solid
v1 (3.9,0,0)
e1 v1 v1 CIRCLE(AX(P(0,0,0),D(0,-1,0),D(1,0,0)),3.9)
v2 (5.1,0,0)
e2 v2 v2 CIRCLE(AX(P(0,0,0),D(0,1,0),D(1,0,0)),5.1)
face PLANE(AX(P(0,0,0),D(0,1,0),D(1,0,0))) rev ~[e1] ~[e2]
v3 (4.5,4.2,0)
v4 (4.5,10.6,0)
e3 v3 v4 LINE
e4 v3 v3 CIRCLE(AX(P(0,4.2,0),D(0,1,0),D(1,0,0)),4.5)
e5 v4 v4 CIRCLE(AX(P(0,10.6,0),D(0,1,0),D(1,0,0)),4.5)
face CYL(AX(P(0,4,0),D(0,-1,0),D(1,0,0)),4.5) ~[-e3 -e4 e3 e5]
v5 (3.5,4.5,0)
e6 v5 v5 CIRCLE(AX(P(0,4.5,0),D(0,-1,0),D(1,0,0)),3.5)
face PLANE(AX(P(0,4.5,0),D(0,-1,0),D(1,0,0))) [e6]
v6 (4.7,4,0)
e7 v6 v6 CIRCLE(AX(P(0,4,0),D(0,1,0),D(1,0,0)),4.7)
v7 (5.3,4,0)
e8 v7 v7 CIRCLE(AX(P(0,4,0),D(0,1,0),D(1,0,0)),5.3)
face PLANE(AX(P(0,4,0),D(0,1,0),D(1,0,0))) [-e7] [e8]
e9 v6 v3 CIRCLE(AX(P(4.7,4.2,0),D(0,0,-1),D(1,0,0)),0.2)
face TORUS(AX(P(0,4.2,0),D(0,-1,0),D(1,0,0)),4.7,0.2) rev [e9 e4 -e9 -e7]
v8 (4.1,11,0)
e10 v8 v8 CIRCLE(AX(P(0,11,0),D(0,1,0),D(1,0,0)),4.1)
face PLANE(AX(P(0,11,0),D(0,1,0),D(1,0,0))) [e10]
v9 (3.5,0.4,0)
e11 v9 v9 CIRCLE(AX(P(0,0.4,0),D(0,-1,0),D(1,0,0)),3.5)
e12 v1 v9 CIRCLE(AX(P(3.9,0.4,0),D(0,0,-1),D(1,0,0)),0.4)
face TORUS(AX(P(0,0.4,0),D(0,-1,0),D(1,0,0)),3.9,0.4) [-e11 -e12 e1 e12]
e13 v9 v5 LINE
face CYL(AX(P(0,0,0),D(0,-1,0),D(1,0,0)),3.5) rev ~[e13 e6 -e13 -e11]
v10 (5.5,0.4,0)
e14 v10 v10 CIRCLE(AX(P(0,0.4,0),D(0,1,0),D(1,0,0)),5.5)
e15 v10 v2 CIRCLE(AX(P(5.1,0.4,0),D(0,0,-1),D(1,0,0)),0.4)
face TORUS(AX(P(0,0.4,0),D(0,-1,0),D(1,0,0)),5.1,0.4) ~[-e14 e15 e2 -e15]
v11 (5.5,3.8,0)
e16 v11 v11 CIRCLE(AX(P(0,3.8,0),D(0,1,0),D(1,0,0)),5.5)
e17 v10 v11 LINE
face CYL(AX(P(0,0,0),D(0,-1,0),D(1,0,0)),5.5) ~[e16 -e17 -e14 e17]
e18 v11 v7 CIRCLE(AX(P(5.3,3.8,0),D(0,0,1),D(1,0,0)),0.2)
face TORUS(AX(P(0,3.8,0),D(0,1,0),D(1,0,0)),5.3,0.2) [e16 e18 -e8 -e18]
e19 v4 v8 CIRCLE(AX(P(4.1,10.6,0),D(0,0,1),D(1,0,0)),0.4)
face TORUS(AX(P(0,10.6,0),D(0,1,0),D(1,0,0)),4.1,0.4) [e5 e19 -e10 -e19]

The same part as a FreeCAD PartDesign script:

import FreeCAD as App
import Part
import Sketcher


def edges_at(feature, points):
    """Names of the edges that pass closest to the given points."""
    edges = feature.Shape.Edges
    near = lambda p: min(range(len(edges)), key=lambda i: edges[i].distToShape(Part.Vertex(*p))[0])
    return sorted({f"Edge{near(p) + 1}" for p in points})

doc = App.newDocument("Part")
params = doc.addObject("Spreadsheet::Sheet", "Params")
for row, (alias, value) in enumerate([
    ("sketch1_diameter", "11 mm"),
    ("pad1_length", "4 mm"),
    ("sketch2_diameter", "9 mm"),
    ("pad2_length", "7 mm"),
    ("sketch3_diameter", "7 mm"),
    ("pocket1_length", "4.5 mm"),
    ("fillet_radius", "0.4 mm"),
    ("fillet2_radius", "0.2 mm"),
], start=1):
    params.set(f"A{row}", alias)
    params.set(f"B{row}", "=" + value)
    params.setAlias(f"B{row}", alias)

body = doc.addObject("PartDesign::Body", "Body")

# Sketch on XZ plane
sketch1 = doc.addObject("Sketcher::SketchObject", "Sketch")
body.addObject(sketch1)
sketch1.AttachmentSupport = (doc.XZ_Plane, [""])
sketch1.MapMode = "FlatFace"
sketch1.addGeometry(Part.Circle(App.Vector(0, 0, 0), App.Vector(0, 0, 1), 5.5), False)
sketch1.addConstraint([
    Sketcher.Constraint("Coincident", 0, 3, -1, 1),
    Sketcher.Constraint("Diameter", 0, 11.0),
])
sketch1.setExpression("Constraints[1]", "Params.sketch1_diameter")
pad1 = doc.addObject("PartDesign::Pad", "Pad")
body.addObject(pad1)
pad1.Profile = sketch1
pad1.setExpression("Length", "Params.pad1_length")
pad1.Reversed = True

# Sketch on XZ plane
sketch2 = doc.addObject("Sketcher::SketchObject", "Sketch001")
body.addObject(sketch2)
sketch2.AttachmentSupport = (doc.XZ_Plane, [""])
sketch2.MapMode = "FlatFace"
sketch2.AttachmentOffset = App.Placement(App.Vector(0, 0, -4), App.Rotation())
sketch2.addGeometry(Part.Circle(App.Vector(0, 0, 0), App.Vector(0, 0, 1), 4.5), False)
sketch2.addConstraint([
    Sketcher.Constraint("Coincident", 0, 3, -1, 1),
    Sketcher.Constraint("Diameter", 0, 9.0),
])
sketch2.setExpression("Constraints[1]", "Params.sketch2_diameter")
pad2 = doc.addObject("PartDesign::Pad", "Pad001")
body.addObject(pad2)
pad2.Profile = sketch2
pad2.setExpression("Length", "Params.pad2_length")
pad2.Reversed = True

# Sketch on XZ plane
sketch3 = doc.addObject("Sketcher::SketchObject", "Sketch002")
body.addObject(sketch3)
sketch3.AttachmentSupport = (doc.XZ_Plane, [""])
sketch3.MapMode = "FlatFace"
sketch3.addGeometry(Part.Circle(App.Vector(0, 0, 0), App.Vector(0, 0, 1), 3.5), False)
sketch3.addConstraint([
    Sketcher.Constraint("Coincident", 0, 3, -1, 1),
    Sketcher.Constraint("Diameter", 0, 7.0),
])
sketch3.setExpression("Constraints[1]", "Params.sketch3_diameter")
pocket1 = doc.addObject("PartDesign::Pocket", "Pocket")
body.addObject(pocket1)
pocket1.Profile = sketch3
pocket1.setExpression("Length", "Params.pocket1_length")
doc.recompute()

fillet = doc.addObject("PartDesign::Fillet", "Fillet")
body.addObject(fillet)
fillet.Base = (pocket1, edges_at(pocket1, [(-3.5, 0, 0), (-5.5, 0, 0), (-4.5, 11, 0)]))
fillet.setExpression("Radius", "Params.fillet_radius")
doc.recompute()

fillet2 = doc.addObject("PartDesign::Fillet", "Fillet001")
body.addObject(fillet2)
fillet2.Base = (fillet, edges_at(fillet, [(-5.5, 4, 0), (-4.5, 4, 0)]))
fillet2.setExpression("Radius", "Params.fillet2_radius")

doc.recompute()
